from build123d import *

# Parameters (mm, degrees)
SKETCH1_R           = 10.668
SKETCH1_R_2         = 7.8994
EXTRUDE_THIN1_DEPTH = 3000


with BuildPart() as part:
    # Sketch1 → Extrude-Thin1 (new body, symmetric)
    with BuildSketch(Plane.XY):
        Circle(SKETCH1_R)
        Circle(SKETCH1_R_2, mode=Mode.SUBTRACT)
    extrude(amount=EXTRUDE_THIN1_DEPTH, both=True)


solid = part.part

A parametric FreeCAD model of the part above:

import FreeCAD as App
import Part
import Sketcher
Q = App.Units.Quantity

doc = App.newDocument("Part")
body = doc.addObject("PartDesign::Body", "Body")

# Sketch on XY plane
sketch1 = doc.addObject("Sketcher::SketchObject", "Sketch")
body.addObject(sketch1)
sketch1.AttachmentSupport = (doc.XY_Plane, [""])
sketch1.MapMode = "FlatFace"
sketch1.addGeometry([
    Part.Circle(App.Vector(0, 0, 0), App.Vector(0, 0, 1), 11),
    Part.Circle(App.Vector(0, 0, 0), App.Vector(0, 0, 1), 8),
], False)
sketch1.addConstraint([
    Sketcher.Constraint("Coincident", 0, 3, -1, 1),
    Sketcher.Constraint("Coincident", 1, 3, -1, 1),
    Sketcher.Constraint("Diameter", 0, Q("0.84 in")),
    Sketcher.Constraint("Diameter", 1, Q("0.622 in")),
])
pad1 = doc.addObject("PartDesign::Pad", "Pad")
body.addObject(pad1)
pad1.Profile = sketch1
pad1.Length = 6000
pad1.Midplane = True

doc.recompute()
